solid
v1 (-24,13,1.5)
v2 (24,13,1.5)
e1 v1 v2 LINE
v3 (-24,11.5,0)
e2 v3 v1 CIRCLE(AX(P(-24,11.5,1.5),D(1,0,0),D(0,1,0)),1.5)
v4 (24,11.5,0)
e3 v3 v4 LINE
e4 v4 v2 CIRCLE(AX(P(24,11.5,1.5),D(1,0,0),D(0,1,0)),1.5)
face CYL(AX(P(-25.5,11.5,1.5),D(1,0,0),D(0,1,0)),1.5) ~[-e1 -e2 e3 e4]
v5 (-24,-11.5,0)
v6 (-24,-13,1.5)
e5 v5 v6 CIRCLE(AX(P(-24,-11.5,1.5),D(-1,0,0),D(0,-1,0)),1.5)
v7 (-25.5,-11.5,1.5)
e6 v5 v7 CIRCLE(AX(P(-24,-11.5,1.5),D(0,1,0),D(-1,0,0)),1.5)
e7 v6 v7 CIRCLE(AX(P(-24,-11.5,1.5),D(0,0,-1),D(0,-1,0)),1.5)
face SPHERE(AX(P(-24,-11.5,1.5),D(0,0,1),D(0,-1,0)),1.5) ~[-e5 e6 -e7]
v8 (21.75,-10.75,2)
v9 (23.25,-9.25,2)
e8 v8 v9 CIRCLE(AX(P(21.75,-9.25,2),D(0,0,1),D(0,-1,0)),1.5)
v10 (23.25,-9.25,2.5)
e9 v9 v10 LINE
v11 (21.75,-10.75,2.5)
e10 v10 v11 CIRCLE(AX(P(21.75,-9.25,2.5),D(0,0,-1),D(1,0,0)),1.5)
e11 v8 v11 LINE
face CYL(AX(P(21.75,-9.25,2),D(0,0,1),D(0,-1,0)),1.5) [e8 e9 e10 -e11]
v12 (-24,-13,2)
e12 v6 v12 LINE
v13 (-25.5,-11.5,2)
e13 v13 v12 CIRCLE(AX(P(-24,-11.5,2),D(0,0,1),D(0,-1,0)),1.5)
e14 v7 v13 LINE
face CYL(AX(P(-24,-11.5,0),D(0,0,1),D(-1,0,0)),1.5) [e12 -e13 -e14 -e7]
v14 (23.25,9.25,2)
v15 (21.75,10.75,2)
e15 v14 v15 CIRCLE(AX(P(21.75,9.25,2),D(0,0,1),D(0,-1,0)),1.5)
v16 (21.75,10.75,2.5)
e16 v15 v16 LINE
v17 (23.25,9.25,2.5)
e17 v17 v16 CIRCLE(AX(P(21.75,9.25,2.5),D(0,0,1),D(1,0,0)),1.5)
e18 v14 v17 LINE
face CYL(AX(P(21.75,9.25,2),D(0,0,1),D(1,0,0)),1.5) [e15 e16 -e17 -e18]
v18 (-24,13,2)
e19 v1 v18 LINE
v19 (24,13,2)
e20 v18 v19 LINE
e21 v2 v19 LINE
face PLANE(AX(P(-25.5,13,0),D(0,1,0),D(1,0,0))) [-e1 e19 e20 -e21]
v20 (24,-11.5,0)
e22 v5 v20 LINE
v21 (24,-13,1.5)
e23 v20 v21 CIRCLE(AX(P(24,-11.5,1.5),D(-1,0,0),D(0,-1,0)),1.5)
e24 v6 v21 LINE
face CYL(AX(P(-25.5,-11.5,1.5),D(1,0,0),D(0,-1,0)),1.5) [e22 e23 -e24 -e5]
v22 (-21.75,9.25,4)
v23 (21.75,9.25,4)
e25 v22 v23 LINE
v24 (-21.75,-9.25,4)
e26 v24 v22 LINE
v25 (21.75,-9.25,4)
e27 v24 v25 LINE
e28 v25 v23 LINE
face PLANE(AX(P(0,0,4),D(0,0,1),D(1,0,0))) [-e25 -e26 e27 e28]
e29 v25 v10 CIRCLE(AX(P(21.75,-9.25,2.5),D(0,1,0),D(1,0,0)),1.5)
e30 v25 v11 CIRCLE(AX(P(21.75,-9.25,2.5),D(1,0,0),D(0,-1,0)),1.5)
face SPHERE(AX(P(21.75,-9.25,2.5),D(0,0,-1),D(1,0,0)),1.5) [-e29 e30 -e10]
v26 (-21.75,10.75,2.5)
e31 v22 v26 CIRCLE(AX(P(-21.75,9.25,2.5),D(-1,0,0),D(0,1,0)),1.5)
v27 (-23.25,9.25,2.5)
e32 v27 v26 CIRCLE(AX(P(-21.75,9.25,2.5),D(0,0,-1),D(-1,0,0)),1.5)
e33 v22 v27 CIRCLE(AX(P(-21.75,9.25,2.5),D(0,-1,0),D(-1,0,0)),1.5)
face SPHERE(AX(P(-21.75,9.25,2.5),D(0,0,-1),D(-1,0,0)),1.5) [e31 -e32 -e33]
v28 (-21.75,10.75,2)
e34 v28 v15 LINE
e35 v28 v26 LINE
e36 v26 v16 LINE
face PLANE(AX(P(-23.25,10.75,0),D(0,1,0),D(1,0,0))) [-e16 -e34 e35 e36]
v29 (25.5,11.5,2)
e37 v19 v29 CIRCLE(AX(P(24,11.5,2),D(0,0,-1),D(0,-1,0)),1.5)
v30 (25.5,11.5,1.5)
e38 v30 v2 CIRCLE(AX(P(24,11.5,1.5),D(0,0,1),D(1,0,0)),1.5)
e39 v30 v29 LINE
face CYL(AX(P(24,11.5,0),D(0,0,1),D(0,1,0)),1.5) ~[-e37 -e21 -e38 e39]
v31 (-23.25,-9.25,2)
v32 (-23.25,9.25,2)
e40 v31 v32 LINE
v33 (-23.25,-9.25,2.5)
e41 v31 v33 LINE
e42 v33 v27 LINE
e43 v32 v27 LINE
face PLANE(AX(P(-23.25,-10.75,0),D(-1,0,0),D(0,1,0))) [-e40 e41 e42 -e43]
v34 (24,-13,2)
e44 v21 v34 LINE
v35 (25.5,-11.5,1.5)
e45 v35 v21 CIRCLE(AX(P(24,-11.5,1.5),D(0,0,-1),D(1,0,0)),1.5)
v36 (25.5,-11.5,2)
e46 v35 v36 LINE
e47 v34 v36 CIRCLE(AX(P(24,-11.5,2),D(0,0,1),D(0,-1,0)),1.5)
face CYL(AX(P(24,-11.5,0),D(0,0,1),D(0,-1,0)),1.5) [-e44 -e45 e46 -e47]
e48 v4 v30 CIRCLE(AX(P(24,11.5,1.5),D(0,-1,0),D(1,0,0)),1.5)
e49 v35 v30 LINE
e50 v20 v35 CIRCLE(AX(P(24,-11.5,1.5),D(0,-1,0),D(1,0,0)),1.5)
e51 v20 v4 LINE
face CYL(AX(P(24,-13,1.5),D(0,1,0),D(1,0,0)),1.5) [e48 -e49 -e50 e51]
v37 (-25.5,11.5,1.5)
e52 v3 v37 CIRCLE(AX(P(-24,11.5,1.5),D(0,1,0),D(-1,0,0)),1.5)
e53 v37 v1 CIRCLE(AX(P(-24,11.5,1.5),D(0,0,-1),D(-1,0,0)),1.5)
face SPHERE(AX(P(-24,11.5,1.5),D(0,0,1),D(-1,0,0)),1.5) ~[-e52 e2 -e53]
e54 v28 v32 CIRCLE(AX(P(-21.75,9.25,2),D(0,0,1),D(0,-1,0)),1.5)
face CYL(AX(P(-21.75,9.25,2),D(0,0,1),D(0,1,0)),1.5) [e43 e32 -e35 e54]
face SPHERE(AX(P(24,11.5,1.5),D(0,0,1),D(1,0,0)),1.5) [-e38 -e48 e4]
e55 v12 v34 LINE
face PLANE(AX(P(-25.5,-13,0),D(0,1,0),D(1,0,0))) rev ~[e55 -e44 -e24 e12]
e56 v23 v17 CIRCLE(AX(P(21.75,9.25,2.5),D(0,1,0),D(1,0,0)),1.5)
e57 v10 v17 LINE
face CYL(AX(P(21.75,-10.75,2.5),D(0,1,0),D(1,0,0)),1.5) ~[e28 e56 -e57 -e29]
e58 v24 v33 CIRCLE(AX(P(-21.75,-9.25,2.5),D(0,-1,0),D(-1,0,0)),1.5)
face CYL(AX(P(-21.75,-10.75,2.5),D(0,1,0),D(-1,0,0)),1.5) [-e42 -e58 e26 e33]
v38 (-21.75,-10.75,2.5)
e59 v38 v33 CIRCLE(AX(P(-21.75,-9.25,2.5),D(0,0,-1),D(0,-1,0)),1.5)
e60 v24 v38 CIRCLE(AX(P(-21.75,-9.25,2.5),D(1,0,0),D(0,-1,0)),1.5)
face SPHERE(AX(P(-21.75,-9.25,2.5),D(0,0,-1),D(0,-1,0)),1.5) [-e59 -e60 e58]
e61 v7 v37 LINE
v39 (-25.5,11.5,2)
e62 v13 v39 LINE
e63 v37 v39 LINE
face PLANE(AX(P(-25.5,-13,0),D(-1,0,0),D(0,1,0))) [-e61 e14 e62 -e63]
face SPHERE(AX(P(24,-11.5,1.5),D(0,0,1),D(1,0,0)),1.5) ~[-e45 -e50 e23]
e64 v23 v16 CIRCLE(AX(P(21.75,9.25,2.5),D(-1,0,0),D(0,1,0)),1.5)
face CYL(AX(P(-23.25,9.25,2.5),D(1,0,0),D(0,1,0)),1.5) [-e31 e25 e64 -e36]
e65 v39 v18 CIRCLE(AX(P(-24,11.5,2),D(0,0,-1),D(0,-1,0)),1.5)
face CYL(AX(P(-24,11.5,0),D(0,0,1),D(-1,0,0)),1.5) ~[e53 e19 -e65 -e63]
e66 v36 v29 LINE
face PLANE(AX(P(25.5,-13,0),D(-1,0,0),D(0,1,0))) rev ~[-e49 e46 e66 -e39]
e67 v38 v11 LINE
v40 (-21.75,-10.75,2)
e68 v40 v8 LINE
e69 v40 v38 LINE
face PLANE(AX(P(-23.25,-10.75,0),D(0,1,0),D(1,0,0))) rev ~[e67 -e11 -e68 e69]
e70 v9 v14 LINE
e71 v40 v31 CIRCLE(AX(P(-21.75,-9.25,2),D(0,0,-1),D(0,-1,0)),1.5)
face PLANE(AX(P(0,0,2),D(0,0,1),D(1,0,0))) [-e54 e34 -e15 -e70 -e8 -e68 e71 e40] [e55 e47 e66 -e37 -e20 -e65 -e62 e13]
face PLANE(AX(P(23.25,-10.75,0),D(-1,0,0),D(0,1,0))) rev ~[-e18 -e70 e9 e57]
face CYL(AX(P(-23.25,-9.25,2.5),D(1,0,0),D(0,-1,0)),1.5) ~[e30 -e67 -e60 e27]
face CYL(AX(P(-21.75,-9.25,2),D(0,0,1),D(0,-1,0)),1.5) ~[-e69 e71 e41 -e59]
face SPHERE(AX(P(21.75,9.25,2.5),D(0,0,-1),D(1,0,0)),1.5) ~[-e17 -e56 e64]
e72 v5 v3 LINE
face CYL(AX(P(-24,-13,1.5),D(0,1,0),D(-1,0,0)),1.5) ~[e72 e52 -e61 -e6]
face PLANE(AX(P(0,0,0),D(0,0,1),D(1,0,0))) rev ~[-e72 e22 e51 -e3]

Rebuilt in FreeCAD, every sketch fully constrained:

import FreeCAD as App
import Part
import Sketcher

V = App.Vector
Q = App.Units.Quantity


def edges_at(feature, points):
    """Names of the edges that pass closest to the given points."""
    edges = feature.Shape.Edges
    near = lambda p: min(range(len(edges)), key=lambda i: edges[i].distToShape(Part.Vertex(*p))[0])
    return sorted({f"Edge{near(p) + 1}" for p in points})


def add_polygon(sketch, points):
    """Adds a closed chain of lines whose ends are joined by coincident constraints."""
    first, n = sketch.GeometryCount, len(points)
    for a, b in zip(points, points[1:] + points[:1]):
        sketch.addGeometry(Part.LineSegment(App.Vector(*a, 0), App.Vector(*b, 0)), False)
    for i in range(n):
        sketch.addConstraint(Sketcher.Constraint("Coincident", first + i, 2, first + (i + 1) % n, 1))

doc = App.newDocument("Part")
body = doc.addObject("PartDesign::Body", "Body")

# Sketch on XY plane
sketch1 = body.newObject("Sketcher::SketchObject", "Sketch")
sketch1.AttachmentSupport = (doc.getObject("XY_Plane"), [""])
sketch1.MapMode = "FlatFace"
add_polygon(sketch1, [(-26, 13), (-26, -13), (26, -13), (26, 13)])  # lines 0-3
add_polygon(sketch1, [(23, -11), (-23, -11), (-23, 11), (23, 11)])  # lines 4-7
sketch1.addConstraint([
    Sketcher.Constraint("Vertical", 0),
    Sketcher.Constraint("Horizontal", 1),
    Sketcher.Constraint("Vertical", 2),
    Sketcher.Constraint("Horizontal", 3),
    Sketcher.Constraint("Horizontal", 4),
    Sketcher.Constraint("Vertical", 5),
    Sketcher.Constraint("Horizontal", 6),
    Sketcher.Constraint("Vertical", 7),
    Sketcher.Constraint("Symmetric", 0, 2, 2, 2, -1, 1),
    Sketcher.Constraint("Symmetric", 4, 2, 6, 2, -1, 1),
    Sketcher.Constraint("DistanceX", 1, 1, 1, 2, Q("51 mm")),
    Sketcher.Constraint("DistanceY", 0, 2, 0, 1, Q("26 mm")),
    Sketcher.Constraint("DistanceX", 4, 2, 4, 1, Q("46.5 mm")),
    Sketcher.Constraint("DistanceY", 5, 1, 5, 2, Q("21.5 mm")),
])
pad1 = body.newObject("PartDesign::Pad", "Pad")
pad1.Profile = sketch1
pad1.Length = 2

# Sketch on XY plane
sketch2 = body.newObject("Sketcher::SketchObject", "Sketch001")
sketch2.AttachmentSupport = (doc.getObject("XY_Plane"), [""])
sketch2.MapMode = "FlatFace"
add_polygon(sketch2, [(-23, 11), (-23, -11), (23, -11), (23, 11)])  # lines 0-3
sketch2.addConstraint([
    Sketcher.Constraint("Vertical", 0),
    Sketcher.Constraint("Horizontal", 1),
    Sketcher.Constraint("Vertical", 2),
    Sketcher.Constraint("Horizontal", 3),
    Sketcher.Constraint("Symmetric", 0, 2, 2, 2, -1, 1),
    Sketcher.Constraint("DistanceX", 1, 1, 1, 2, Q("46.5 mm")),
    Sketcher.Constraint("DistanceY", 0, 2, 0, 1, Q("21.5 mm")),
])
pad2 = body.newObject("PartDesign::Pad", "Pad001")
pad2.Profile = sketch2
pad2.Length = 4
doc.recompute()

fillet = body.newObject("PartDesign::Fillet", "Fillet")
fillet.Base = (pad2, edges_at(pad2, [
    (25.5, 13, 1),
    (-25.5, 13, 1),
    (-25.5, -13, 1),
    (25.5, -13, 1),
    (25.5, 0, 0),
    (0, -13, 0),
    (-25.5, 0, 0),
    (0, 13, 0),
]))
fillet.Radius = 1.5
doc.recompute()

fillet2 = body.newObject("PartDesign::Fillet", "Fillet001")
fillet2.Base = (fillet, edges_at(fillet, [
    (-23.25, -10.75, 3),
    (-23.25, 10.75, 3),
    (23.25, 10.75, 3),
    (23.25, -10.75, 3),
    (23.25, 0, 4),
    (0, -10.75, 4),
    (-23.25, 0, 4),
    (0, 10.75, 4),
]))
fillet2.Radius = 1.5

doc.recompute()
